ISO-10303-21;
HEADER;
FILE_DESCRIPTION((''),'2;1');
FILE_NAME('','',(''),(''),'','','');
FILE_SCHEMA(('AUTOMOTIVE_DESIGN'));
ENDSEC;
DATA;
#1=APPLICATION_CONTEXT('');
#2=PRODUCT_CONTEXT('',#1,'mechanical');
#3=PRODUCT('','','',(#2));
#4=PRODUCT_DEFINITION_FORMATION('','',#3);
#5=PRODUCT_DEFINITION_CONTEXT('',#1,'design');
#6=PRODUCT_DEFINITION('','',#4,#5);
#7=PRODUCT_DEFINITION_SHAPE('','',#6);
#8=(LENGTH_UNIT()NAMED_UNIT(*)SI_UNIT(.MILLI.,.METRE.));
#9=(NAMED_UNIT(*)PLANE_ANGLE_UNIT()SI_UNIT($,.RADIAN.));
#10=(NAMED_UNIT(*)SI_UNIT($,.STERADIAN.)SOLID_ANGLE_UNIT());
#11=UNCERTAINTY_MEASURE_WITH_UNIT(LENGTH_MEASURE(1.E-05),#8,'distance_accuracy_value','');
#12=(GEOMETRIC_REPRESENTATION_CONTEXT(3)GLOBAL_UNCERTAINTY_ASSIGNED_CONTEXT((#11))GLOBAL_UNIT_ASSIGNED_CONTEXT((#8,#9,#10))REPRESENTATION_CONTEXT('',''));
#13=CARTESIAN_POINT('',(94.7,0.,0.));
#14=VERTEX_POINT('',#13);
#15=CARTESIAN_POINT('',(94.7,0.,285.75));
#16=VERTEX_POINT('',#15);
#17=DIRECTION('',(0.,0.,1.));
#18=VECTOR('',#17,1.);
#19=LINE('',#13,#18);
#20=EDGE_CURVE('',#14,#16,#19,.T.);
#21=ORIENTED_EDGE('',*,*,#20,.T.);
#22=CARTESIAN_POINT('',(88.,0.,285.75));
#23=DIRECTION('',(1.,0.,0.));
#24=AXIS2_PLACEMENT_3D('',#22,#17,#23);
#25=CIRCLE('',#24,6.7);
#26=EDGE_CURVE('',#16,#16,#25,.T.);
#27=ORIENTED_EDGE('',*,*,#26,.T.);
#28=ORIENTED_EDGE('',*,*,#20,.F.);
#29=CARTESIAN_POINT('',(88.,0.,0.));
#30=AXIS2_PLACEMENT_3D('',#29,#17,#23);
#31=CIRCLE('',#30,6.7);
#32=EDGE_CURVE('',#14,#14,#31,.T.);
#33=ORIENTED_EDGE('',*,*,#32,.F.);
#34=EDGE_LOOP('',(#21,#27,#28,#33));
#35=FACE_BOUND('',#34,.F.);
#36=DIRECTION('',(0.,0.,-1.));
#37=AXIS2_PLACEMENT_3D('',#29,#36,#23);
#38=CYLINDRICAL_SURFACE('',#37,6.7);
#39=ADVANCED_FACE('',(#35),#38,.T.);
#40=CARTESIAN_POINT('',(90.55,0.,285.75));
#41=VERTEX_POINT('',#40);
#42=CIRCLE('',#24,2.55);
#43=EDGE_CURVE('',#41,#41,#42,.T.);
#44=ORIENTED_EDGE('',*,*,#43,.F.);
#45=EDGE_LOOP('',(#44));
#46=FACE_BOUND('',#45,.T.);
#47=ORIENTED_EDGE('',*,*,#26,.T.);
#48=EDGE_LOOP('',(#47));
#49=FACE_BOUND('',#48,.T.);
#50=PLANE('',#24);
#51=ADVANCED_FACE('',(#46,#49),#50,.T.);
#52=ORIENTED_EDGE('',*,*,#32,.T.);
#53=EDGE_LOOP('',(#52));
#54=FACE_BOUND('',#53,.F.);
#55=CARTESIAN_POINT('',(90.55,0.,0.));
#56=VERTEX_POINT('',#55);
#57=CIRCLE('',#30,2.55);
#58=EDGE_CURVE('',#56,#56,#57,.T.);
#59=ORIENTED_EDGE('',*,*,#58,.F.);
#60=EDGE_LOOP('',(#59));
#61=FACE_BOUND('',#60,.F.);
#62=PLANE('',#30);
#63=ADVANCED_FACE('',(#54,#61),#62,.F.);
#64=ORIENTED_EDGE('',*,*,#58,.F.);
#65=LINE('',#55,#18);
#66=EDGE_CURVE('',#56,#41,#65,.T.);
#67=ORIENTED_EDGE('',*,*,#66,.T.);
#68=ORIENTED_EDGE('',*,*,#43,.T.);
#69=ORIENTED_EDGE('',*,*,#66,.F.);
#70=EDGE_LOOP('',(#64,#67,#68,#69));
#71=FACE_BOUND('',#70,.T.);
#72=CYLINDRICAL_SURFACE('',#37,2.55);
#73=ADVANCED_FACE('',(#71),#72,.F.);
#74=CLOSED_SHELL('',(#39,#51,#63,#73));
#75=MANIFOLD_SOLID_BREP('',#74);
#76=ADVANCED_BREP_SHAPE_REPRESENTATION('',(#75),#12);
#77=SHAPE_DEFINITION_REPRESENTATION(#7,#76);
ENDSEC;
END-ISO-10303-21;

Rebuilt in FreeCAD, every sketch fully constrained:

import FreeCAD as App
import Part
import Sketcher

doc = App.newDocument("Part")
params = doc.addObject("Spreadsheet::Sheet", "Params")
for row, (alias, value) in enumerate([
    ("sketch1_diameter", "13.4 mm"),
    ("sketch1_diameter2", "5.1 mm"),
    ("pad1_length", "285.75 mm"),
], start=1):
    params.set(f"A{row}", alias)
    params.set(f"B{row}", "=" + value)
    params.setAlias(f"B{row}", alias)

body = doc.addObject("PartDesign::Body", "Body")

# Sketch on XY plane
sketch1 = doc.addObject("Sketcher::SketchObject", "Sketch")
body.addObject(sketch1)
sketch1.AttachmentSupport = (doc.XY_Plane, [""])
sketch1.MapMode = "FlatFace"
sketch1.addGeometry([
    Part.Circle(App.Vector(0, 0, 0), App.Vector(0, 0, 1), 6.7),
    Part.Circle(App.Vector(0, 0, 0), App.Vector(0, 0, 1), 2.5),
], False)
sketch1.addConstraint([
    Sketcher.Constraint("Coincident", 0, 3, -1, 1),
    Sketcher.Constraint("Coincident", 1, 3, -1, 1),
    Sketcher.Constraint("Diameter", 0, 13.4),
    Sketcher.Constraint("Diameter", 1, 5.1),
])
sketch1.setExpression("Constraints[2]", "Params.sketch1_diameter")
sketch1.setExpression("Constraints[3]", "Params.sketch1_diameter2")
pad1 = doc.addObject("PartDesign::Pad", "Pad")
body.addObject(pad1)
pad1.Profile = sketch1
pad1.setExpression("Length", "Params.pad1_length")
body2 = doc.addObject("PartDesign::Body", "Body001")
doc.recompute()

body.Placement = App.Placement(App.Vector(88, 0, 0), App.Rotation(App.Vector(0, 0, 1), 0))
boolean = doc.addObject("PartDesign::Boolean", "Boolean")
body2.addObject(boolean)
boolean.Type = "Fuse"
boolean.addObjects([body])

doc.recompute()
